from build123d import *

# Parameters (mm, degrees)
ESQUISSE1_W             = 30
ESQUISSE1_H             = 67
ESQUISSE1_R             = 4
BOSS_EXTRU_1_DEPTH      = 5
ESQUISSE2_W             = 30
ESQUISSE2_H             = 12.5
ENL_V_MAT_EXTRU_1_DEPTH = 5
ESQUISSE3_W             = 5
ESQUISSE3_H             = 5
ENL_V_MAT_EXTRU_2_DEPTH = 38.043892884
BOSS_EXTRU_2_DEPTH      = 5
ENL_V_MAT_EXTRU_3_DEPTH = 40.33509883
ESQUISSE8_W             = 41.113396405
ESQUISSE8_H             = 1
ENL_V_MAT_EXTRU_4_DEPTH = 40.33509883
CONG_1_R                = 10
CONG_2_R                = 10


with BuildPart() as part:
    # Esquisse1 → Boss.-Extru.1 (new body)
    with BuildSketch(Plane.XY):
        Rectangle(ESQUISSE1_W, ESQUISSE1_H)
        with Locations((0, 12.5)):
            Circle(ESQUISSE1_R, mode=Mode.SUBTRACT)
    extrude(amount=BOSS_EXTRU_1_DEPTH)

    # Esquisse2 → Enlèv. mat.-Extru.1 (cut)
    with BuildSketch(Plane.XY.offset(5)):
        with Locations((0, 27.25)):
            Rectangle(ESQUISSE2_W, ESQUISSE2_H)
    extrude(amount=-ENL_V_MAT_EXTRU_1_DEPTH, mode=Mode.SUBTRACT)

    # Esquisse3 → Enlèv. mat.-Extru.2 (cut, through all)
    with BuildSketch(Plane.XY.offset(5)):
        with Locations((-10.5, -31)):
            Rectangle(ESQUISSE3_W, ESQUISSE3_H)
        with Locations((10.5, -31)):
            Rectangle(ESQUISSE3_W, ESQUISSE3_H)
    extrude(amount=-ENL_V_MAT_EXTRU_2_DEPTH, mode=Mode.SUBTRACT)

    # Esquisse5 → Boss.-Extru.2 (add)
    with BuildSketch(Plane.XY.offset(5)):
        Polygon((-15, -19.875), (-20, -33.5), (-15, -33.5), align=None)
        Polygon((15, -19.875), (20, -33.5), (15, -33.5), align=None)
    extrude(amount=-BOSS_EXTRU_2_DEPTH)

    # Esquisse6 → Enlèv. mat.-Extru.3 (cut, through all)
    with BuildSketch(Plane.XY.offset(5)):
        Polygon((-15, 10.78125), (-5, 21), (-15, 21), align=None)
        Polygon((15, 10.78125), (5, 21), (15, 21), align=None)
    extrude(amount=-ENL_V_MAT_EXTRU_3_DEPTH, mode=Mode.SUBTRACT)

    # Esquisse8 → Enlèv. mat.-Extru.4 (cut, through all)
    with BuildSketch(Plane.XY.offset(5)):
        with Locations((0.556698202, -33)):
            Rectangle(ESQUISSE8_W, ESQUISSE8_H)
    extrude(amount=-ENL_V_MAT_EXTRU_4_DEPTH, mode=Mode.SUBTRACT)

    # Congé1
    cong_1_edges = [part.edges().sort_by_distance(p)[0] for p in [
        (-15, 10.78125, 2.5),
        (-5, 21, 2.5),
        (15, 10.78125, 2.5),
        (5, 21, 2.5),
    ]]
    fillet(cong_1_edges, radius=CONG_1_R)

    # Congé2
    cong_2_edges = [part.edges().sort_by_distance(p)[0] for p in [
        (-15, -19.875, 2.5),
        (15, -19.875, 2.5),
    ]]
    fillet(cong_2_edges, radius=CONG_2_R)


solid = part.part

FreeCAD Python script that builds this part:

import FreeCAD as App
import Part
import Sketcher
from FreeCAD import Vector
Q = App.Units.Quantity


def edges_at(feature, points):
    """Names of the edges that pass closest to the given points."""
    edges = feature.Shape.Edges
    near = lambda p: min(range(len(edges)), key=lambda i: edges[i].distToShape(Part.Vertex(*p))[0])
    return sorted({f"Edge{near(p) + 1}" for p in points})


def add_polygon(sketch, points):
    """Adds a closed chain of lines whose ends are joined by coincident constraints."""
    first, n = sketch.GeometryCount, len(points)
    for a, b in zip(points, points[1:] + points[:1]):
        sketch.addGeometry(Part.LineSegment(App.Vector(*a, 0), App.Vector(*b, 0)), False)
    for i in range(n):
        sketch.addConstraint(Sketcher.Constraint("Coincident", first + i, 2, first + (i + 1) % n, 1))

doc = App.newDocument("Part")
body = doc.addObject("PartDesign::Body", "Body")

sketch1 = doc.addObject("Sketcher::SketchObject", "Sketch")
body.addObject(sketch1)
sketch1.AttachmentSupport = (doc.XY_Plane, [""])
sketch1.MapMode = "FlatFace"
add_polygon(sketch1, [(-15, 33.5), (-15, -33.5), (15, -33.5), (15, 33.5)])
sketch1.addGeometry(Part.Circle(Vector(0, 12.5, 0), Vector(0, 0, 1), 4), False)
sketch1.addConstraint([
    Sketcher.Constraint("Vertical", 0),
    Sketcher.Constraint("Horizontal", 1),
    Sketcher.Constraint("Vertical", 2),
    Sketcher.Constraint("Horizontal", 3),
    Sketcher.Constraint("Symmetric", 0, 2, 2, 2, -1, 1),
    Sketcher.Constraint("PointOnObject", 4, 3, -2),
    Sketcher.Constraint("Diameter", 4, Q("8 mm")),
    Sketcher.Constraint("DistanceX", 1, 1, 1, 2, Q("30 mm")),
    Sketcher.Constraint("DistanceY", 0, 2, 0, 1, Q("67 mm")),
    Sketcher.Constraint("DistanceY", 0, 2, 4, 3, Q("46 mm")),
])
pad1 = doc.addObject("PartDesign::Pad", "Pad")
body.addObject(pad1)
pad1.Profile = sketch1
pad1.Length = 5

sketch2 = doc.addObject("Sketcher::SketchObject", "Sketch001")
body.addObject(sketch2)
sketch2.AttachmentSupport = (doc.XY_Plane, [""])
sketch2.MapMode = "FlatFace"
sketch2.AttachmentOffset = App.Placement(Vector(0, 0, 5), App.Rotation())
add_polygon(sketch2, [(-15, 34), (-15, 21), (15, 21), (15, 34)])
sketch2.addConstraint([
    Sketcher.Constraint("Vertical", 0),
    Sketcher.Constraint("Horizontal", 1),
    Sketcher.Constraint("Vertical", 2),
    Sketcher.Constraint("Horizontal", 3),
    Sketcher.Constraint("DistanceX", 1, 1, 1, 2, Q("30 mm")),
    Sketcher.Constraint("DistanceY", 0, 2, 0, 1, Q("12.5 mm")),
    Sketcher.Constraint("DistanceX", 0, 2, -1, 1, Q("15 mm")),
    Sketcher.Constraint("DistanceY", -1, 1, 0, 2, Q("21 mm")),
])
pocket1 = doc.addObject("PartDesign::Pocket", "Pocket")
body.addObject(pocket1)
pocket1.Profile = sketch2
pocket1.Length = 5

sketch3 = doc.addObject("Sketcher::SketchObject", "Sketch002")
body.addObject(sketch3)
sketch3.AttachmentSupport = (doc.XY_Plane, [""])
sketch3.MapMode = "FlatFace"
sketch3.AttachmentOffset = App.Placement(Vector(0, 0, 5), App.Rotation())
add_polygon(sketch3, [(-13, -28), (-13, -34), (-8, -34), (-8, -28)])
add_polygon(sketch3, [(8, -28), (8, -34), (13, -34), (13, -28)])
sketch3.addConstraint([
    Sketcher.Constraint("Vertical", 0),
    Sketcher.Constraint("Horizontal", 1),
    Sketcher.Constraint("Vertical", 2),
    Sketcher.Constraint("Horizontal", 3),
    Sketcher.Constraint("Vertical", 4),
    Sketcher.Constraint("Horizontal", 5),
    Sketcher.Constraint("Vertical", 6),
    Sketcher.Constraint("Horizontal", 7),
    Sketcher.Constraint("Symmetric", 1, 2, 4, 2, -2),
    Sketcher.Constraint("Symmetric", 3, 2, 6, 2, -2),
    Sketcher.Constraint("Equal", 7, 0),
    Sketcher.Constraint("DistanceX", 1, 1, 1, 2, Q("5 mm")),
    Sketcher.Constraint("DistanceX", 0, 2, -1, 1, Q("13 mm")),
    Sketcher.Constraint("DistanceY", 0, 2, -1, 1, Q("33.5 mm")),
])
pocket2 = doc.addObject("PartDesign::Pocket", "Pocket001")
body.addObject(pocket2)
pocket2.Profile = sketch3
pocket2.Type = "ThroughAll"

sketch4 = doc.addObject("Sketcher::SketchObject", "Sketch003")
body.addObject(sketch4)
sketch4.AttachmentSupport = (doc.XY_Plane, [""])
sketch4.MapMode = "FlatFace"
sketch4.AttachmentOffset = App.Placement(Vector(0, 0, 5), App.Rotation())
add_polygon(sketch4, [(-15, -20), (-20, -34), (-15, -34)])
add_polygon(sketch4, [(20, -34), (15, -20), (15, -34)])
sketch4.addConstraint([
    Sketcher.Constraint("Horizontal", 1),
    Sketcher.Constraint("Vertical", 2),
    Sketcher.Constraint("Vertical", 4),
    Sketcher.Constraint("Horizontal", 5),
    Sketcher.Constraint("Symmetric", 2, 2, 3, 2, -2),
    Sketcher.Constraint("Symmetric", 0, 2, 5, 2, -2),
    Sketcher.Constraint("DistanceX", 1, 1, 1, 2, Q("5 mm")),
    Sketcher.Constraint("DistanceX", 0, 2, -1, 1, Q("20 mm")),
    Sketcher.Constraint("DistanceY", 0, 2, -1, 1, Q("33.5 mm")),
    Sketcher.Constraint("DistanceY", 2, 1, 2, 2, Q("13.625 mm")),
])
pad2 = doc.addObject("PartDesign::Pad", "Pad001")
body.addObject(pad2)
pad2.Profile = sketch4
pad2.Length = 5
pad2.Reversed = True

sketch5 = doc.addObject("Sketcher::SketchObject", "Sketch004")
body.addObject(sketch5)
sketch5.AttachmentSupport = (doc.XY_Plane, [""])
sketch5.MapMode = "FlatFace"
sketch5.AttachmentOffset = App.Placement(Vector(0, 0, 5), App.Rotation())
add_polygon(sketch5, [(-15, 11), (-5, 21), (-15, 21)])
add_polygon(sketch5, [(5, 21), (15, 11), (15, 21)])
sketch5.addConstraint([
    Sketcher.Constraint("Horizontal", 1),
    Sketcher.Constraint("Vertical", 2),
    Sketcher.Constraint("Vertical", 4),
    Sketcher.Constraint("Horizontal", 5),
    Sketcher.Constraint("Symmetric", 2, 2, 3, 2, -2),
    Sketcher.Constraint("Symmetric", 0, 2, 5, 2, -2),
    Sketcher.Constraint("DistanceX", 1, 2, 1, 1, Q("10 mm")),
    Sketcher.Constraint("DistanceX", 0, 2, -1, 1, Q("5 mm")),
    Sketcher.Constraint("DistanceY", -1, 1, 0, 2, Q("21 mm")),
    Sketcher.Constraint("DistanceY", 2, 2, 2, 1, Q("10.21875 mm")),
])
pocket3 = doc.addObject("PartDesign::Pocket", "Pocket002")
body.addObject(pocket3)
pocket3.Profile = sketch5
pocket3.Type = "ThroughAll"

sketch6 = doc.addObject("Sketcher::SketchObject", "Sketch005")
body.addObject(sketch6)
sketch6.AttachmentSupport = (doc.XY_Plane, [""])
sketch6.MapMode = "FlatFace"
sketch6.AttachmentOffset = App.Placement(Vector(0, 0, 5), App.Rotation())
add_polygon(sketch6, [(-20, -32.5), (-20, -33.5), (21.1, -33.5), (21.1, -32.5)])
sketch6.addConstraint([
    Sketcher.Constraint("Vertical", 0),
    Sketcher.Constraint("Horizontal", 1),
    Sketcher.Constraint("Vertical", 2),
    Sketcher.Constraint("Horizontal", 3),
    Sketcher.Constraint("DistanceY", 0, 2, 0, 1, Q("1 mm")),
    Sketcher.Constraint("DistanceX", 0, 2, -1, 1, Q("20 mm")),
    Sketcher.Constraint("DistanceY", 0, 2, -1, 1, Q("33.5 mm")),
    Sketcher.Constraint("DistanceX", 1, 1, 1, 2, Q("41.113396 mm")),
])
pocket4 = doc.addObject("PartDesign::Pocket", "Pocket003")
body.addObject(pocket4)
pocket4.Profile = sketch6
pocket4.Type = "ThroughAll"
doc.recompute()

fillet = doc.addObject("PartDesign::Fillet", "Fillet")
body.addObject(fillet)
fillet.Base = (pocket4, edges_at(pocket4, [
    (-15, 10.781, 2.5),
    (-5, 21, 2.5),
    (15, 10.781, 2.5),
    (5, 21, 2.5),
]))
fillet.Radius = 10
doc.recompute()

fillet2 = doc.addObject("PartDesign::Fillet", "Fillet001")
body.addObject(fillet2)
fillet2.Base = (fillet, edges_at(fillet, [(-15, -19.875, 2.5), (15, -19.875, 2.5)]))
fillet2.Radius = 10

doc.recompute()
